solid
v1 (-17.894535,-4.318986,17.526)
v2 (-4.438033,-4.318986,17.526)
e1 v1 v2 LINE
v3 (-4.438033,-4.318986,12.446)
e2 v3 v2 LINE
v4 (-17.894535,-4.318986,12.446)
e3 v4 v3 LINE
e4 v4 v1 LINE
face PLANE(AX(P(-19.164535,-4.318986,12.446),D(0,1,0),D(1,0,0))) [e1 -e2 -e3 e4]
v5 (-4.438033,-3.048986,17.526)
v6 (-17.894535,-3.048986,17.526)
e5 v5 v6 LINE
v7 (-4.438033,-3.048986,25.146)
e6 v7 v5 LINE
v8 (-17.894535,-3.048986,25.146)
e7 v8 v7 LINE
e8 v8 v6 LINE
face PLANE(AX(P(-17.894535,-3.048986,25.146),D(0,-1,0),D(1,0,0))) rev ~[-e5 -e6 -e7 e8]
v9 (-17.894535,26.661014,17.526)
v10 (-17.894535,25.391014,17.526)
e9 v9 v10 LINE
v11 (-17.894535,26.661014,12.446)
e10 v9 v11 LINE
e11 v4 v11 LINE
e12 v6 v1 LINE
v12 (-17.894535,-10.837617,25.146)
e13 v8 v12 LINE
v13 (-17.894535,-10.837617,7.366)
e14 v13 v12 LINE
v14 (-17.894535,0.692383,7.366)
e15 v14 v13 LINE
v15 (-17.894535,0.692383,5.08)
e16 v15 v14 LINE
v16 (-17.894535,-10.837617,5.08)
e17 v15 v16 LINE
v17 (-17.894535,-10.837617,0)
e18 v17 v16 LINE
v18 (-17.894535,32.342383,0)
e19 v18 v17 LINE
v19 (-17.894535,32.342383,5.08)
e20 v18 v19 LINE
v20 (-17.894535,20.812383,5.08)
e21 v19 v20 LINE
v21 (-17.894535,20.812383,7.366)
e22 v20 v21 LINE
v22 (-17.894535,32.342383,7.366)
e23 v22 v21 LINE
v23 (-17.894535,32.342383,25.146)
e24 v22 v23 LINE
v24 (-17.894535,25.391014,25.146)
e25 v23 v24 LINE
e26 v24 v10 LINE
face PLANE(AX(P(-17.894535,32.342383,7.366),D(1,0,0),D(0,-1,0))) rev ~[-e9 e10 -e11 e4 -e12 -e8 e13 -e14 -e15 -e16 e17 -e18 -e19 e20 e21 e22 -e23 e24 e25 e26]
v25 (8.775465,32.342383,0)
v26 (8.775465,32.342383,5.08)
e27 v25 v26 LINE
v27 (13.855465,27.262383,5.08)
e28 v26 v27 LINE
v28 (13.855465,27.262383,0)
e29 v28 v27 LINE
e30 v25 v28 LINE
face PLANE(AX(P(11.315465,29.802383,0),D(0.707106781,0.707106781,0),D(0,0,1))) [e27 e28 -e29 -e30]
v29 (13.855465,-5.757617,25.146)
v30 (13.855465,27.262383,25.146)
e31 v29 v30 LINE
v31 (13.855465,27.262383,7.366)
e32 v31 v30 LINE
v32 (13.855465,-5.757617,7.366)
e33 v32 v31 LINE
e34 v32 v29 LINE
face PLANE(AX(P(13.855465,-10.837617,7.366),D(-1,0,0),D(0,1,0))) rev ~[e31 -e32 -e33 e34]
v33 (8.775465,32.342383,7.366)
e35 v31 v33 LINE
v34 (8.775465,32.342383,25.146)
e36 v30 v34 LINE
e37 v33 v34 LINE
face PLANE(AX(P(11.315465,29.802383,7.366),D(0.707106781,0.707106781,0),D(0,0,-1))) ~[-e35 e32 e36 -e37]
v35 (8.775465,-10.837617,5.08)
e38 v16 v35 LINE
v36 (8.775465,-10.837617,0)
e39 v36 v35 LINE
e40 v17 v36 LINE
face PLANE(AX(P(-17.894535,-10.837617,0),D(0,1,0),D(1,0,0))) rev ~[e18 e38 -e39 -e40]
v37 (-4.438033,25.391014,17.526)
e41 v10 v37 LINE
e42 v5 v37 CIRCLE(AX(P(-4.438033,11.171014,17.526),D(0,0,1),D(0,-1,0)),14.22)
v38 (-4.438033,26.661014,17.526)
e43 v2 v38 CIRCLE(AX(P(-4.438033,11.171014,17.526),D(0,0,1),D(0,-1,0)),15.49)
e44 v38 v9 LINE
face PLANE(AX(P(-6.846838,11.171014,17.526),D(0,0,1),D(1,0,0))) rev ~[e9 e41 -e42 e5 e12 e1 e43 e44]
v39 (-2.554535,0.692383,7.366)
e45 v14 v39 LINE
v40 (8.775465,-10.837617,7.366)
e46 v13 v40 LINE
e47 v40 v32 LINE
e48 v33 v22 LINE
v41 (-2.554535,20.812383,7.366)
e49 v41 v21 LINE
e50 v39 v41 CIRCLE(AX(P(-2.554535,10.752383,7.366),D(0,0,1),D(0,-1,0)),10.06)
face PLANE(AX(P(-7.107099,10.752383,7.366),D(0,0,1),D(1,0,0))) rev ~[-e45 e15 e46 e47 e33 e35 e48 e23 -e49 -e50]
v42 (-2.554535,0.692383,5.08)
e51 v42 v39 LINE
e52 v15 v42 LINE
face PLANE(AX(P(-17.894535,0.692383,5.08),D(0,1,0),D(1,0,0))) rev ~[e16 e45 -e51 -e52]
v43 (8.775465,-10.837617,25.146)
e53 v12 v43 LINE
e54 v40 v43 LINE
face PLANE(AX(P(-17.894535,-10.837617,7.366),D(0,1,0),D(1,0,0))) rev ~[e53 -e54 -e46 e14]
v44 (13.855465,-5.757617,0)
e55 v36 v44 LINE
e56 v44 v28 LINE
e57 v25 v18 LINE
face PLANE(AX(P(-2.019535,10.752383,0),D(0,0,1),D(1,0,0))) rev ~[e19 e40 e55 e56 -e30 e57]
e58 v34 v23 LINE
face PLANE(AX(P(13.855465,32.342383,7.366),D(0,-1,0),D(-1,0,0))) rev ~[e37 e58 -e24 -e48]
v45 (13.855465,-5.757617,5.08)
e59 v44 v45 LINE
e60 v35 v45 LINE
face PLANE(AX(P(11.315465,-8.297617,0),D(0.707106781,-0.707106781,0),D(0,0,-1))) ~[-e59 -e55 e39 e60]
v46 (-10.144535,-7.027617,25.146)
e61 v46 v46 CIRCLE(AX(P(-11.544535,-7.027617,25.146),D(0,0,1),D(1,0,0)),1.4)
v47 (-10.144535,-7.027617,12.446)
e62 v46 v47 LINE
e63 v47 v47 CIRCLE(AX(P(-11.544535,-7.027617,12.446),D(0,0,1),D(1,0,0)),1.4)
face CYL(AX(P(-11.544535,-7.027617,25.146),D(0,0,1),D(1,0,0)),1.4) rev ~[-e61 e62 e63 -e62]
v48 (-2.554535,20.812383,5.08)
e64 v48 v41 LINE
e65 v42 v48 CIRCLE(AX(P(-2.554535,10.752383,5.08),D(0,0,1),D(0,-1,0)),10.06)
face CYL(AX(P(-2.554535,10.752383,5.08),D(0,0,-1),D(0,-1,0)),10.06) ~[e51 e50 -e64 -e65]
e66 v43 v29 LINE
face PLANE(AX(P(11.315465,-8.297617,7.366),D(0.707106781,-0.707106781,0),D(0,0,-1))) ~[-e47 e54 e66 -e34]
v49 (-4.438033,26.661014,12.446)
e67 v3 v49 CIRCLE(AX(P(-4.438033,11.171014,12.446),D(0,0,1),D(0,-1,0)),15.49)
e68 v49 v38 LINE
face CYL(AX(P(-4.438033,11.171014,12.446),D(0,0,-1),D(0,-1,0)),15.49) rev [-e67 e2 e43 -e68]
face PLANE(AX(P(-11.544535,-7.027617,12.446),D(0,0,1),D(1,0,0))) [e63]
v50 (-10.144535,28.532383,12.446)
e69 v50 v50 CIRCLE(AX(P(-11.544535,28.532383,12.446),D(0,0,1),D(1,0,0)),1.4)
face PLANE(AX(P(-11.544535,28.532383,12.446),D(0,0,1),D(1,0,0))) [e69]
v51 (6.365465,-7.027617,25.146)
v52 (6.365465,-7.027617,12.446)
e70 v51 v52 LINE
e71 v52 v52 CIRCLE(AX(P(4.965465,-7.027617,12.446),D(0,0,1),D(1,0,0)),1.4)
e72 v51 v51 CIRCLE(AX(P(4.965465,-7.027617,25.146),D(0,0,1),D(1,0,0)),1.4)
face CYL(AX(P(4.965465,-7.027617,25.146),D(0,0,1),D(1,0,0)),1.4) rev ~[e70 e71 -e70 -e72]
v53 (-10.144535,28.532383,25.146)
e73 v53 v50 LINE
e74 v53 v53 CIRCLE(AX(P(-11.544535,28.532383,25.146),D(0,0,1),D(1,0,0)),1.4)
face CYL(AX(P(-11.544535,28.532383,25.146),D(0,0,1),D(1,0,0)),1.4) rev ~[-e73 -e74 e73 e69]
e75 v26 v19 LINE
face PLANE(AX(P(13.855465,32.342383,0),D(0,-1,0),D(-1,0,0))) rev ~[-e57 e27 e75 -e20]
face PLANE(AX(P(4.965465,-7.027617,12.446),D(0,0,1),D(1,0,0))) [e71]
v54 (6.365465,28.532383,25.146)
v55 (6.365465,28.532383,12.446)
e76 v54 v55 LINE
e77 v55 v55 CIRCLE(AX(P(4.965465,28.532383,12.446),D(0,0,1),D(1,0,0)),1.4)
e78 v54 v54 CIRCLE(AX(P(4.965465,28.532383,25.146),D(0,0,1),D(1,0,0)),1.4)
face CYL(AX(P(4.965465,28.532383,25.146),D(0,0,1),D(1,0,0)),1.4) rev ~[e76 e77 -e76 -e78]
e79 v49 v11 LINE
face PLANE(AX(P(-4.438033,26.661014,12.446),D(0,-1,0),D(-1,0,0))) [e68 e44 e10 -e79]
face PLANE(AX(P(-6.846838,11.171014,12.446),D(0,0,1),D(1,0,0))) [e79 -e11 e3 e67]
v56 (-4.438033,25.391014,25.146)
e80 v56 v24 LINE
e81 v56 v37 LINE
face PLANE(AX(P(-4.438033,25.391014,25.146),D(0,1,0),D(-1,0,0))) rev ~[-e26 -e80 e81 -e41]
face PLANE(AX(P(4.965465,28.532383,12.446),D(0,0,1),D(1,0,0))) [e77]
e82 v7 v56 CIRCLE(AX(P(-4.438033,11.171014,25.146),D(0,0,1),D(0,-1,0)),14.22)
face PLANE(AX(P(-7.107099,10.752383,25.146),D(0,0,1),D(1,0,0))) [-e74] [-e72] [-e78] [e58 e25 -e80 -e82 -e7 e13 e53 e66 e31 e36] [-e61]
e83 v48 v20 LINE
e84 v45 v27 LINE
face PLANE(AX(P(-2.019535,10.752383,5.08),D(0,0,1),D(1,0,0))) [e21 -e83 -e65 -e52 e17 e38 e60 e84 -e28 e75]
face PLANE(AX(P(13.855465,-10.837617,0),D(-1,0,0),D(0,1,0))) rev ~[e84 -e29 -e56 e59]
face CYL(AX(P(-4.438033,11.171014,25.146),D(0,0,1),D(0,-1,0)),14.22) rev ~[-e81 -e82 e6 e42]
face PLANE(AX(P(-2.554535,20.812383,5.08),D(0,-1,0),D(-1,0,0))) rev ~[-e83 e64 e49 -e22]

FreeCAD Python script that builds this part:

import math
import FreeCAD as App
import Part
import Sketcher
Q = App.Units.Quantity


def edges_at(feature, points):
    """Names of the edges that pass closest to the given points."""
    edges = feature.Shape.Edges
    near = lambda p: min(range(len(edges)), key=lambda i: edges[i].distToShape(Part.Vertex(*p))[0])
    return sorted({f"Edge{near(p) + 1}" for p in points})

doc = App.newDocument("Part")
body = doc.addObject("PartDesign::Body", "Body")

# Sketch on XY plane
sketch1 = body.newObject("Sketcher::SketchObject", "Sketch")
sketch1.AttachmentSupport = (doc.getObject("XY_Plane"), [""])
sketch1.MapMode = "FlatFace"
sketch1.addGeometry([
    Part.LineSegment(App.Vector(-17.894535, -10.837617, 0), App.Vector(13.855465, -10.837617, 0)),
    Part.LineSegment(App.Vector(13.855465, -10.837617, 0), App.Vector(13.855465, 32.342383, 0)),
    Part.LineSegment(App.Vector(13.855465, 32.342383, 0), App.Vector(-17.894535, 32.342383, 0)),
    Part.LineSegment(App.Vector(-17.894535, 32.342383, 0), App.Vector(-17.894535, -10.837617, 0)),
], False)
sketch1.addConstraint([
    Sketcher.Constraint("Coincident", 0, 2, 1, 1),
    Sketcher.Constraint("Coincident", 1, 2, 2, 1),
    Sketcher.Constraint("Coincident", 2, 2, 3, 1),
    Sketcher.Constraint("Coincident", 3, 2, 0, 1),
    Sketcher.Constraint("Horizontal", 0),
    Sketcher.Constraint("Vertical", 1),
    Sketcher.Constraint("Horizontal", 2),
    Sketcher.Constraint("Vertical", 3),
    Sketcher.Constraint("DistanceY", 1, 1, 1, 2, Q("1.7 in")),
    Sketcher.Constraint("DistanceX", 0, 1, 0, 2, Q("1.25 in")),
    Sketcher.Constraint("DistanceX", -1, 1, 0, 2, 13.855465),
    Sketcher.Constraint("DistanceY", 0, 2, -1, 1, 10.837617),
])
pad1 = body.newObject("PartDesign::Pad", "Pad")
pad1.Profile = sketch1
pad1.Length = Q("0.2 in")

# Sketch on XY plane
sketch2 = body.newObject("Sketcher::SketchObject", "Sketch001")
sketch2.AttachmentSupport = (doc.getObject("XY_Plane"), [""])
sketch2.MapMode = "FlatFace"
sketch2.AttachmentOffset = App.Placement(App.Vector(0, 0, 0.2 * 25.4), App.Rotation())
sketch2.addGeometry([
    Part.LineSegment(App.Vector(-2.554535, 20.812383, 0), App.Vector(-17.894535, 20.812383, 0)),
    Part.LineSegment(App.Vector(-17.894535, 20.812383, 0), App.Vector(-17.894535, 0.692383, 0)),
    Part.LineSegment(App.Vector(-17.894535, 0.692383, 0), App.Vector(-2.554535, 0.692383, 0)),
    Part.ArcOfCircle(Part.Circle(App.Vector(-2.554535, 10.752383, 0), App.Vector(0, 0, 1), 10.06), math.radians(-90), math.radians(90)),
], False)
sketch2.addConstraint([
    Sketcher.Constraint("Coincident", 0, 2, 1, 1),
    Sketcher.Constraint("Coincident", 1, 2, 2, 1),
    Sketcher.Constraint("Tangent", 2, 2, 3, 1),
    Sketcher.Constraint("Tangent", 3, 2, 0, 1),
    Sketcher.Constraint("Horizontal", 0),
    Sketcher.Constraint("Vertical", 1),
    Sketcher.Constraint("Horizontal", 2),
    Sketcher.Constraint("Radius", 3, 10.06),
    Sketcher.Constraint("DistanceX", 0, 2, 0, 1, 15.34),
    Sketcher.Constraint("DistanceX", 3, 3, -1, 1, 2.554535),
    Sketcher.Constraint("DistanceY", -1, 1, 3, 3, 10.752383),
])
pad2 = body.newObject("PartDesign::Pad", "Pad001")
pad2.Profile = sketch2
pad2.Length = Q("0.09 in")

# Sketch on XY plane
sketch3 = body.newObject("Sketcher::SketchObject", "Sketch002")
sketch3.AttachmentSupport = (doc.getObject("XY_Plane"), [""])
sketch3.MapMode = "FlatFace"
sketch3.AttachmentOffset = App.Placement(App.Vector(0, 0, 0.29 * 25.4), App.Rotation())
sketch3.addGeometry([
    Part.LineSegment(App.Vector(-17.894535, -10.837617, 0), App.Vector(13.855465, -10.837617, 0)),
    Part.LineSegment(App.Vector(13.855465, -10.837617, 0), App.Vector(13.855465, 32.342383, 0)),
    Part.LineSegment(App.Vector(13.855465, 32.342383, 0), App.Vector(-17.894535, 32.342383, 0)),
    Part.LineSegment(App.Vector(-17.894535, 32.342383, 0), App.Vector(-17.894535, -10.837617, 0)),
], False)
sketch3.addConstraint([
    Sketcher.Constraint("Coincident", 0, 2, 1, 1),
    Sketcher.Constraint("Coincident", 1, 2, 2, 1),
    Sketcher.Constraint("Coincident", 2, 2, 3, 1),
    Sketcher.Constraint("Coincident", 3, 2, 0, 1),
    Sketcher.Constraint("Horizontal", 0),
    Sketcher.Constraint("Vertical", 1),
    Sketcher.Constraint("Horizontal", 2),
    Sketcher.Constraint("Vertical", 3),
    Sketcher.Constraint("DistanceY", 1, 1, 1, 2, Q("1.7 in")),
    Sketcher.Constraint("DistanceX", 0, 1, 0, 2, Q("1.25 in")),
    Sketcher.Constraint("DistanceX", -1, 1, 0, 2, 13.855465),
    Sketcher.Constraint("DistanceY", 0, 2, -1, 1, 10.837617),
])
pad3 = body.newObject("PartDesign::Pad", "Pad002")
pad3.Profile = sketch3
pad3.Length = Q("0.7 in")
doc.recompute()

chamfer = body.newObject("PartDesign::Chamfer", "Chamfer")
chamfer.Base = (pad3, edges_at(pad3, [
    (13.855, -10.838, 16.256),
    (13.855, -10.838, 2.54),
    (13.855, 32.342, 16.256),
    (13.855, 32.342, 2.54),
]))
chamfer.Size = Q("0.2 in")

# Sketch on XY plane
sketch4 = body.newObject("Sketcher::SketchObject", "Sketch003")
sketch4.AttachmentSupport = (doc.getObject("XY_Plane"), [""])
sketch4.MapMode = "FlatFace"
sketch4.AttachmentOffset = App.Placement(App.Vector(0, 0, 0.99 * 25.4), App.Rotation())
sketch4.addGeometry([
    Part.LineSegment(App.Vector(-4.438033, 25.391014, 0), App.Vector(-17.894535, 25.391014, 0)),  # 0
    Part.LineSegment(App.Vector(-17.894535, 25.391014, 0), App.Vector(-17.894535, -3.048986, 0)),  # 1
    Part.LineSegment(App.Vector(-17.894535, -3.048986, 0), App.Vector(-4.438033, -3.048986, 0)),  # 2
    Part.ArcOfCircle(Part.Circle(App.Vector(-4.438033, 11.171014, 0), App.Vector(0, 0, 1), 14.22), math.radians(-90), math.radians(90)),  # 3
    Part.Circle(App.Vector(-11.544535, 28.532383, 0), App.Vector(0, 0, 1), 1.4),  # 4
    Part.Circle(App.Vector(4.965465, 28.532383, 0), App.Vector(0, 0, 1), 1.4),  # 5
    Part.Circle(App.Vector(-11.544535, -7.027617, 0), App.Vector(0, 0, 1), 1.4),  # 6
    Part.Circle(App.Vector(4.965465, -7.027617, 0), App.Vector(0, 0, 1), 1.4),  # 7
], False)
sketch4.addConstraint([
    Sketcher.Constraint("Coincident", 0, 2, 1, 1),
    Sketcher.Constraint("Coincident", 1, 2, 2, 1),
    Sketcher.Constraint("Tangent", 2, 2, 3, 1),
    Sketcher.Constraint("Tangent", 3, 2, 0, 1),
    Sketcher.Constraint("Horizontal", 0),
    Sketcher.Constraint("Vertical", 1),
    Sketcher.Constraint("Horizontal", 2),
    Sketcher.Constraint("Equal", 4, 5),
    Sketcher.Constraint("Equal", 5, 6),
    Sketcher.Constraint("Equal", 6, 7),
    Sketcher.Constraint("Horizontal", 4, 3, 5, 3),
    Sketcher.Constraint("Horizontal", 6, 3, 7, 3),
    Sketcher.Constraint("Vertical", 4, 3, 6, 3),
    Sketcher.Constraint("Vertical", 5, 3, 7, 3),
    Sketcher.Constraint("DistanceY", 6, 3, 4, 3, Q("1.4 in")),
    Sketcher.Constraint("DistanceX", 0, 2, 5, 3, Q("0.9 in")),
    Sketcher.Constraint("Diameter", 4, 2.8),
    Sketcher.Constraint("Radius", 3, 14.22),
    Sketcher.Constraint("DistanceX", 4, 3, 5, 3, Q("0.65 in")),
    Sketcher.Constraint("DistanceX", 0, 2, 0, 1, 13.456502),
    Sketcher.Constraint("DistanceY", 3, 3, 4, 3, 17.361369),
    Sketcher.Constraint("DistanceX", 3, 3, -1, 1, 4.438033),
    Sketcher.Constraint("DistanceY", -1, 1, 3, 3, 11.171014),
])
pocket1 = body.newObject("PartDesign::Pocket", "Pocket")
pocket1.Profile = sketch4
pocket1.Length = Q("0.5 in")

# Sketch on XY plane
sketch5 = body.newObject("Sketcher::SketchObject", "Sketch004")
sketch5.AttachmentSupport = (doc.getObject("XY_Plane"), [""])
sketch5.MapMode = "FlatFace"
sketch5.AttachmentOffset = App.Placement(App.Vector(0, 0, 0.49 * 25.4), App.Rotation())
sketch5.addGeometry([
    Part.LineSegment(App.Vector(-4.438033, 26.661014, 0), App.Vector(-19.164535, 26.661014, 0)),
    Part.LineSegment(App.Vector(-19.164535, 26.661014, 0), App.Vector(-19.164535, -4.318986, 0)),
    Part.LineSegment(App.Vector(-19.164535, -4.318986, 0), App.Vector(-4.438033, -4.318986, 0)),
    Part.ArcOfCircle(Part.Circle(App.Vector(-4.438033, 11.171014, 0), App.Vector(0, 0, 1), 15.49), math.radians(-90), math.radians(90)),
], False)
sketch5.addConstraint([
    Sketcher.Constraint("Coincident", 0, 2, 1, 1),
    Sketcher.Constraint("Coincident", 1, 2, 2, 1),
    Sketcher.Constraint("Tangent", 2, 2, 3, 1),
    Sketcher.Constraint("Tangent", 3, 2, 0, 1),
    Sketcher.Constraint("Horizontal", 0),
    Sketcher.Constraint("Vertical", 1),
    Sketcher.Constraint("Horizontal", 2),
    Sketcher.Constraint("Radius", 3, 15.49),
    Sketcher.Constraint("DistanceX", 0, 2, 0, 1, 14.726502),
    Sketcher.Constraint("DistanceX", 3, 3, -1, 1, 4.438033),
    Sketcher.Constraint("DistanceY", -1, 1, 3, 3, 11.171014),
])
pocket2 = body.newObject("PartDesign::Pocket", "Pocket001")
pocket2.Profile = sketch5
pocket2.Length = Q("0.2 in")
pocket2.Reversed = True

doc.recompute()
